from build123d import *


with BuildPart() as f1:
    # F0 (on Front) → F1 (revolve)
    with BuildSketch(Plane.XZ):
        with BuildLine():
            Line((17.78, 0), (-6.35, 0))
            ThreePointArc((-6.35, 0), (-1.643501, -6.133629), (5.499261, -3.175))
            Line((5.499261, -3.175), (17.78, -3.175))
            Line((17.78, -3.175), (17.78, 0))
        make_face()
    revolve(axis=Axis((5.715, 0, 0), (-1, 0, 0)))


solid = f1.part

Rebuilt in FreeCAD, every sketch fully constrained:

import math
import FreeCAD as App
import Part
import Sketcher

V = App.Vector
Q = App.Units.Quantity

doc = App.newDocument("Part")
body = doc.addObject("PartDesign::Body", "Body")

sketch1 = doc.addObject("Sketcher::SketchObject", "Sketch")
body.addObject(sketch1)
sketch1.AttachmentSupport = (doc.XZ_Plane, [""])
sketch1.MapMode = "FlatFace"
sketch1.addGeometry([
    Part.LineSegment(V(17.78, 0, 0), V(-6.35, 0, 0)),
    Part.ArcOfCircle(Part.Circle(V(0, 0, 0), V(0, 0, 1), 6.35), math.radians(179.999999), math.radians(330.000001)),
    Part.LineSegment(V(5.499261, -3.175, 0), V(17.78, -3.175, 0)),
    Part.LineSegment(V(17.78, -3.175, 0), V(17.78, 0, 0)),
], False)
sketch1.addConstraint([
    Sketcher.Constraint("Coincident", 0, 2, 1, 1),
    Sketcher.Constraint("Coincident", 1, 2, 2, 1),
    Sketcher.Constraint("Coincident", 2, 2, 3, 1),
    Sketcher.Constraint("Coincident", 3, 2, 0, 1),
    Sketcher.Constraint("Horizontal", 0),
    Sketcher.Constraint("Horizontal", 2),
    Sketcher.Constraint("Vertical", 3),
    Sketcher.Constraint("Coincident", 1, 3, -1, 1),
    Sketcher.Constraint("PointOnObject", 0, 2, -1),
    Sketcher.Constraint("Radius", 1, Q("0.25 in")),
    Sketcher.Constraint("DistanceX", 0, 2, 0, 1, Q("0.95 in")),
    Sketcher.Constraint("DistanceY", 3, 1, 3, 2, Q("0.125 in")),
])
revolution = doc.addObject("PartDesign::Revolution", "Revolution")
body.addObject(revolution)
revolution.Profile = sketch1
revolution.ReferenceAxis = (sketch1, ["H_Axis"])
revolution.Angle = 360

doc.recompute()
